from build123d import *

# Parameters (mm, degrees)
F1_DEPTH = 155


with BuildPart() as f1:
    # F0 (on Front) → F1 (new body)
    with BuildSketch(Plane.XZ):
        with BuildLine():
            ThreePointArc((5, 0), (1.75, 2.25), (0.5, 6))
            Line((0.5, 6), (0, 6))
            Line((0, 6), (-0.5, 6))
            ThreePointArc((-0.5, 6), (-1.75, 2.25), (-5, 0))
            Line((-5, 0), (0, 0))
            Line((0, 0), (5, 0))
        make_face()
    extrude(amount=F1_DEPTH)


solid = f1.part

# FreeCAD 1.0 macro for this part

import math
import FreeCAD as App
import Part
import Sketcher
from FreeCAD import Vector

doc = App.newDocument("Part")
body = doc.addObject("PartDesign::Body", "Body")

# Sketch on XZ plane
sketch1 = doc.addObject("Sketcher::SketchObject", "Sketch")
body.addObject(sketch1)
sketch1.AttachmentSupport = (doc.XZ_Plane, [""])
sketch1.MapMode = "FlatFace"
sketch1.addGeometry([
    Part.ArcOfCircle(Part.Circle(Vector(6.8, 6, 0), Vector(0, 0, 1), 6.2), math.radians(180), math.radians(254)),
    Part.LineSegment(Vector(0.5, 6, 0), Vector(-0.5, 6, 0)),
    Part.ArcOfCircle(Part.Circle(Vector(-6.8, 6, 0), Vector(0, 0, 1), 6.2), math.radians(-74), math.radians(0)),
    Part.LineSegment(Vector(-5, 0, 0), Vector(5, 0, 0)),
], False)
sketch1.addConstraint([
    Sketcher.Constraint("Coincident", 0, 1, 1, 1),
    Sketcher.Constraint("Coincident", 1, 2, 2, 2),
    Sketcher.Constraint("Coincident", 2, 1, 3, 1),
    Sketcher.Constraint("Coincident", 3, 2, 0, 2),
    Sketcher.Constraint("Horizontal", 1),
    Sketcher.Constraint("Horizontal", 3),
    Sketcher.Constraint("Equal", 0, 2),
    Sketcher.Constraint("Symmetric", 2, 1, 3, 2, -1, 1),
    Sketcher.Constraint("Horizontal", 0, 3, 2, 3),
    Sketcher.Constraint("Horizontal", 2, 3, 0, 1),
    Sketcher.Constraint("DistanceX", 1, 2, 1, 1, 1.0),
    Sketcher.Constraint("DistanceX", 3, 1, 3, 2, 10.0),
    Sketcher.Constraint("Radius", 0, 6.25),
])
pad1 = doc.addObject("PartDesign::Pad", "Pad")
body.addObject(pad1)
pad1.Profile = sketch1
pad1.Length = 155

doc.recompute()
